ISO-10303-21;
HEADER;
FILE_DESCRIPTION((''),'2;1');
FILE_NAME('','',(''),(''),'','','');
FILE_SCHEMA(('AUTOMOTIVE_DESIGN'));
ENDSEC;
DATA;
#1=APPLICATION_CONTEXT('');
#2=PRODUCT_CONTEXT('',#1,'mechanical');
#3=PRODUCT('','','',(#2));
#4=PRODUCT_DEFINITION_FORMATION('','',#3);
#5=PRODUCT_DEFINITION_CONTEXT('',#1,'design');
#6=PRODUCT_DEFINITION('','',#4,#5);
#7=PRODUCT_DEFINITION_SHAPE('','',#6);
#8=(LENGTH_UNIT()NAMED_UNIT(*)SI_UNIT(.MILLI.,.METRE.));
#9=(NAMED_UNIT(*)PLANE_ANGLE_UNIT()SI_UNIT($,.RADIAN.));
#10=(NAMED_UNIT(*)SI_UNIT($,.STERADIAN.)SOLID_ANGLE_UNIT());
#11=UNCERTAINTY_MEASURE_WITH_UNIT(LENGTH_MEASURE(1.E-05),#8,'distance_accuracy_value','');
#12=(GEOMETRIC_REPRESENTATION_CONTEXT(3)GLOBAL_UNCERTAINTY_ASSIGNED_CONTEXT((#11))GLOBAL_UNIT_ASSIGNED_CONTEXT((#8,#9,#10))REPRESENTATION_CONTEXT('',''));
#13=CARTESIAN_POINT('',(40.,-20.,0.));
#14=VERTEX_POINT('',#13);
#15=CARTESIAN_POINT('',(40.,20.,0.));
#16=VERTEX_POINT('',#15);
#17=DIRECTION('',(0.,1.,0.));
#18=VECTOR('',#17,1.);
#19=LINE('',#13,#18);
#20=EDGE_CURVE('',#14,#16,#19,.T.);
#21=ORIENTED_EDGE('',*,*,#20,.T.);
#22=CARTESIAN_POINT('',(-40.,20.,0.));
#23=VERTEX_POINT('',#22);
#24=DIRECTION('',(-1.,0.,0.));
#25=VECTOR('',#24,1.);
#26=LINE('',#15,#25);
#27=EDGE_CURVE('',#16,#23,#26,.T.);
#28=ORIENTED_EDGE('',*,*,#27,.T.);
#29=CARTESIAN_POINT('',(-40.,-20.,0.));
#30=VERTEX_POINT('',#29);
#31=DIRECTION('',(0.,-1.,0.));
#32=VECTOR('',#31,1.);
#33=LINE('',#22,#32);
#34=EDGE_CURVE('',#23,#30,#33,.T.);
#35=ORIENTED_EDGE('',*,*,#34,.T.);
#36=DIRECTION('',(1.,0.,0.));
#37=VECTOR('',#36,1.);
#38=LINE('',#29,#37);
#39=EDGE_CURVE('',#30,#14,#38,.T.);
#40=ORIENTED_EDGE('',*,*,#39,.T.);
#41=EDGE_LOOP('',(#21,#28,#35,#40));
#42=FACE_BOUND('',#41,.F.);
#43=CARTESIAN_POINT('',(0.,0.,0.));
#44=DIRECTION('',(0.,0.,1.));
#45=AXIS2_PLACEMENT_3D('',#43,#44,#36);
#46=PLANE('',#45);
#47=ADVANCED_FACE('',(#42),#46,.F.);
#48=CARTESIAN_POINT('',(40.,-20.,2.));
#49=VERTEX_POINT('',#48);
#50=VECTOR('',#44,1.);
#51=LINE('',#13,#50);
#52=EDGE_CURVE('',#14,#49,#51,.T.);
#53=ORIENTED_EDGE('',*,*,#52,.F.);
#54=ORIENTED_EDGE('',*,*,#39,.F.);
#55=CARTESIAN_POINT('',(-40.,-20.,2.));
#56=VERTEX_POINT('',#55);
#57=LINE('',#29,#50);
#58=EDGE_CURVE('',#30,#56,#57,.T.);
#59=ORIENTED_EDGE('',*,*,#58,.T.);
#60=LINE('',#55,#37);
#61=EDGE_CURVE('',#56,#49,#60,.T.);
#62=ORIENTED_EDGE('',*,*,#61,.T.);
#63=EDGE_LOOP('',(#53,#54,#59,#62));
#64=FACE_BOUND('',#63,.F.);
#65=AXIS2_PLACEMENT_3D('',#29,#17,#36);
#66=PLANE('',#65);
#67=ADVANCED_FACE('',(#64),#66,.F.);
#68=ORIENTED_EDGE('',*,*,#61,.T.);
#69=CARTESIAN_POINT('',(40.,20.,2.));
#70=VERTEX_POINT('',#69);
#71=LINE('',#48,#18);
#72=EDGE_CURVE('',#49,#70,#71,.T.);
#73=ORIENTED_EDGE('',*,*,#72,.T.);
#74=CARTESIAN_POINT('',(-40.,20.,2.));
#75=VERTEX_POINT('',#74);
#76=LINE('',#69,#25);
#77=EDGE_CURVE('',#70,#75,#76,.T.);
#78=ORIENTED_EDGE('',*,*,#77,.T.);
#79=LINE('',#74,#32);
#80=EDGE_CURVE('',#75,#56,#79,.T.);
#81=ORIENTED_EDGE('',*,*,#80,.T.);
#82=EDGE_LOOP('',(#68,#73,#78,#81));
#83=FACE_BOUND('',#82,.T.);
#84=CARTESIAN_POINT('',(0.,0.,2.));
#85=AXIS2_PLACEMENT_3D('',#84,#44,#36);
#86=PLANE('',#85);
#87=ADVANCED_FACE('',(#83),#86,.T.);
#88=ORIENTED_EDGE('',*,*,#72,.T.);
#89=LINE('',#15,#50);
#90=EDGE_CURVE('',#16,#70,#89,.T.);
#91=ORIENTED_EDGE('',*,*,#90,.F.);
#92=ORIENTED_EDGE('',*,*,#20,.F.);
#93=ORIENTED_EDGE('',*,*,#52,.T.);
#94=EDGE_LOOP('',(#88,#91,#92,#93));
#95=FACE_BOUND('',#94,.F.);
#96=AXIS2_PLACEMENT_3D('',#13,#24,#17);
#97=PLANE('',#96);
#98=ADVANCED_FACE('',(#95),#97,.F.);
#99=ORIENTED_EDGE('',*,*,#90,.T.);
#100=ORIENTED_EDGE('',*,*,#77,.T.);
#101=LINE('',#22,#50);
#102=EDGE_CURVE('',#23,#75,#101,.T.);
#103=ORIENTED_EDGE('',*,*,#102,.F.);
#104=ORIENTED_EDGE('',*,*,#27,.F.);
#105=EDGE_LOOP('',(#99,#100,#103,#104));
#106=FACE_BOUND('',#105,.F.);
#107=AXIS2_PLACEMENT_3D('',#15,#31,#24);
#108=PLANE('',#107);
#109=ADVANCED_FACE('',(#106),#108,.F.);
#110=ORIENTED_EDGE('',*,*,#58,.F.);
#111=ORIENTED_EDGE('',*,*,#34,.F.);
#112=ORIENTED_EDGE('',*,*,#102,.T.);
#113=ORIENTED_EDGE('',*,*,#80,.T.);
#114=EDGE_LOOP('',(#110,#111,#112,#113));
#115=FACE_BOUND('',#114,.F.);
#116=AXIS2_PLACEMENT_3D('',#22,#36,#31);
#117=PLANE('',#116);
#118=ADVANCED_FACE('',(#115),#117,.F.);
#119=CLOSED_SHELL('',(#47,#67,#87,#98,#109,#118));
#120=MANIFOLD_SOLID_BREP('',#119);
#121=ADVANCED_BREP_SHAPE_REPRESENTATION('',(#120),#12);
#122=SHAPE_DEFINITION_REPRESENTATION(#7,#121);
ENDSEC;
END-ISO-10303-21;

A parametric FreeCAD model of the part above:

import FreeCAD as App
import Part
import Sketcher
from FreeCAD import Vector
Q = App.Units.Quantity


def add_polygon(sketch, points):
    """Adds a closed chain of lines whose ends are joined by coincident constraints."""
    first, n = sketch.GeometryCount, len(points)
    for a, b in zip(points, points[1:] + points[:1]):
        sketch.addGeometry(Part.LineSegment(App.Vector(*a, 0), App.Vector(*b, 0)), False)
    for i in range(n):
        sketch.addConstraint(Sketcher.Constraint("Coincident", first + i, 2, first + (i + 1) % n, 1))

doc = App.newDocument("Part")
body = doc.addObject("PartDesign::Body", "Body")

# Sketch on XY plane
sketch1 = body.newObject("Sketcher::SketchObject", "Sketch")
sketch1.AttachmentSupport = (doc.getObject("XY_Plane"), [""])
sketch1.MapMode = "FlatFace"
add_polygon(sketch1, [(-40, 20), (-40, -20), (40, -20), (40, 20)])  # lines 0-3
sketch1.addConstraint([
    Sketcher.Constraint("Vertical", 0),
    Sketcher.Constraint("Horizontal", 1),
    Sketcher.Constraint("Vertical", 2),
    Sketcher.Constraint("Horizontal", 3),
    Sketcher.Constraint("Symmetric", 0, 2, 2, 2, -1, 1),
    Sketcher.Constraint("DistanceX", 1, 1, 1, 2, Q("80 mm")),
    Sketcher.Constraint("DistanceY", 0, 2, 0, 1, Q("40 mm")),
])
pad1 = body.newObject("PartDesign::Pad", "Pad")
pad1.Profile = sketch1
pad1.Length = 2

doc.recompute()
